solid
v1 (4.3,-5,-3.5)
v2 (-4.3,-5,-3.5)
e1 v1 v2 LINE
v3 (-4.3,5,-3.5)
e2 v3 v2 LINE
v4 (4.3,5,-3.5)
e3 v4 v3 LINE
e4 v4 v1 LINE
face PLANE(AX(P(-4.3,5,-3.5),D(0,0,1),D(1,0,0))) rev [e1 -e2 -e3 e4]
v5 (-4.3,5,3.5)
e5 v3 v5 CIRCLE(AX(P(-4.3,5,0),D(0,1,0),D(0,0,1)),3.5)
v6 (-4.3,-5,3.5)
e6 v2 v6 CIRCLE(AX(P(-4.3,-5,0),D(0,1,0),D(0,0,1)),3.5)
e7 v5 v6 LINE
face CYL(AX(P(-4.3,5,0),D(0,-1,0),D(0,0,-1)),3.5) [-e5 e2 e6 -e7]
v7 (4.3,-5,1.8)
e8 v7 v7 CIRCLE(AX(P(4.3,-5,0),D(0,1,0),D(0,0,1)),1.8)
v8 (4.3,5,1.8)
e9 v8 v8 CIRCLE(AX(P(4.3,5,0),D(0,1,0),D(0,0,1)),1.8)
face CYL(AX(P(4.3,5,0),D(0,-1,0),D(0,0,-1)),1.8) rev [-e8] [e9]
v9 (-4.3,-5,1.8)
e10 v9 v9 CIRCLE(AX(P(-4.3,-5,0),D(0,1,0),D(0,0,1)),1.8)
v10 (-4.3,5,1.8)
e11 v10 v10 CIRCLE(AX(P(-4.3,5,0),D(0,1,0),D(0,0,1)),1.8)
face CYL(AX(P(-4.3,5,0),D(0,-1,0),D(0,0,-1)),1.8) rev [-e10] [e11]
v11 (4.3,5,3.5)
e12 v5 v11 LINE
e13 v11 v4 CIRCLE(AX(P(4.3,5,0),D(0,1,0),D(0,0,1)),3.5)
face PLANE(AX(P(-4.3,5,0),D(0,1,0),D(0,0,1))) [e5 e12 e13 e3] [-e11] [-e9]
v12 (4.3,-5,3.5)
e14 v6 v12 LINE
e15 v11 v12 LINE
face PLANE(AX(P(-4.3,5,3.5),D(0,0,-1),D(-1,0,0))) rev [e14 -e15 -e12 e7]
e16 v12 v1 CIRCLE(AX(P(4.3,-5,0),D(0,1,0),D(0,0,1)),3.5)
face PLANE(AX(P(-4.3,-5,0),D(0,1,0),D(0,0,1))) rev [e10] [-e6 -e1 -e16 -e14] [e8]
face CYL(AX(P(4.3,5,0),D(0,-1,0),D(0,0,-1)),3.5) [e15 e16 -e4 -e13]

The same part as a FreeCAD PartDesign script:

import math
import FreeCAD as App
import Part
import Sketcher
from FreeCAD import Vector
Q = App.Units.Quantity

doc = App.newDocument("Part")
params = doc.addObject("Spreadsheet::Sheet", "Params")
for row, (alias, value) in enumerate([
    ("sketch1_diameter", "3.6 mm"),
    ("sketch1_radius", "3.5 mm"),
    ("sketch1_width", "8.6 mm"),
    ("pad1_length", "10 mm"),
], start=1):
    params.set(f"A{row}", alias)
    params.set(f"B{row}", "=" + value)
    params.setAlias(f"B{row}", alias)

body = doc.addObject("PartDesign::Body", "Body")

# Sketch on XZ plane
sketch1 = body.newObject("Sketcher::SketchObject", "Sketch")
sketch1.AttachmentSupport = (doc.getObject("XZ_Plane"), [""])
sketch1.MapMode = "FlatFace"
sketch1.addGeometry([
    Part.LineSegment(Vector(4.3, -3.5, 0), Vector(-4.3, -3.5, 0)),  # 0
    Part.ArcOfCircle(Part.Circle(Vector(-4.3, 0, 0), Vector(0, 0, 1), 3.5), math.radians(90), math.radians(270)),  # 1
    Part.LineSegment(Vector(-4.3, 3.5, 0), Vector(4.3, 3.5, 0)),  # 2
    Part.ArcOfCircle(Part.Circle(Vector(4.3, 0, 0), Vector(0, 0, 1), 3.5), math.radians(-90), math.radians(90)),  # 3
    Part.Circle(Vector(4.3, 0, 0), Vector(0, 0, 1), 1.8),  # 4
    Part.Circle(Vector(-4.3, 0, 0), Vector(0, 0, 1), 1.8),  # 5
], False)
sketch1.addConstraint([
    Sketcher.Constraint("Tangent", 0, 2, 1, 2),
    Sketcher.Constraint("Tangent", 1, 1, 2, 1),
    Sketcher.Constraint("Tangent", 2, 2, 3, 2),
    Sketcher.Constraint("Tangent", 3, 1, 0, 1),
    Sketcher.Constraint("Horizontal", 0),
    Sketcher.Constraint("Horizontal", 2),
    Sketcher.Constraint("Coincident", 4, 3, 3, 3),
    Sketcher.Constraint("Coincident", 5, 3, 1, 3),
    Sketcher.Constraint("Equal", 4, 5),
    Sketcher.Constraint("Symmetric", 1, 3, 3, 3, -1, 1),
    Sketcher.Constraint("Diameter", 4, Q("3.6 mm")),
    Sketcher.Constraint("Radius", 1, Q("3.5 mm")),
    Sketcher.Constraint("DistanceX", 0, 2, 0, 1, Q("8.6 mm")),
])
sketch1.setExpression("Constraints[10]", "Params.sketch1_diameter")
sketch1.setExpression("Constraints[11]", "Params.sketch1_radius")
sketch1.setExpression("Constraints[12]", "Params.sketch1_width")
pad1 = body.newObject("PartDesign::Pad", "Pad")
pad1.Profile = sketch1
pad1.setExpression("Length", "Params.pad1_length")
pad1.Midplane = True

doc.recompute()
